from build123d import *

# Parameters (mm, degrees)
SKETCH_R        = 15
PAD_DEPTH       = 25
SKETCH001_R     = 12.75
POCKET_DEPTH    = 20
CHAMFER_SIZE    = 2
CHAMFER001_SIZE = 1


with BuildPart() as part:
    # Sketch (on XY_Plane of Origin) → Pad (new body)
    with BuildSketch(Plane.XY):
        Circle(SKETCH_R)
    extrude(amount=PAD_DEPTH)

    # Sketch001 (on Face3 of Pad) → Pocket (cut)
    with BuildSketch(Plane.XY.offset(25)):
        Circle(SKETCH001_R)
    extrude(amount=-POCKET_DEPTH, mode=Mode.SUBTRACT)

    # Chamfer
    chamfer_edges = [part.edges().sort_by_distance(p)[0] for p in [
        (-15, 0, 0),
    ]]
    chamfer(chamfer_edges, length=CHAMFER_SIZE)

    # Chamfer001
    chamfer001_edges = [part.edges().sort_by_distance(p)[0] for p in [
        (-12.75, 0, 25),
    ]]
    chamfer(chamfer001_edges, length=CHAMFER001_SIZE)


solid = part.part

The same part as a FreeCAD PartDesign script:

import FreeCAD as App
import Part
import Sketcher


def edges_at(feature, points):
    """Names of the edges that pass closest to the given points."""
    edges = feature.Shape.Edges
    near = lambda p: min(range(len(edges)), key=lambda i: edges[i].distToShape(Part.Vertex(*p))[0])
    return sorted({f"Edge{near(p) + 1}" for p in points})

doc = App.newDocument("Part")
body = doc.addObject("PartDesign::Body", "Body")

# Sketch on XY plane
sketch1 = body.newObject("Sketcher::SketchObject", "Sketch")
sketch1.AttachmentSupport = (doc.getObject("XY_Plane"), [""])
sketch1.MapMode = "FlatFace"
sketch1.addGeometry(Part.Circle(App.Vector(0, 0, 0), App.Vector(0, 0, 1), 15), False)
sketch1.addConstraint([
    Sketcher.Constraint("Coincident", 0, 3, -1, 1),
    Sketcher.Constraint("Diameter", 0, 30.0),
])
pad1 = body.newObject("PartDesign::Pad", "Pad")
pad1.Profile = sketch1
pad1.Length = 25

# Sketch on XY plane
sketch2 = body.newObject("Sketcher::SketchObject", "Sketch001")
sketch2.AttachmentSupport = (doc.getObject("XY_Plane"), [""])
sketch2.MapMode = "FlatFace"
sketch2.AttachmentOffset = App.Placement(App.Vector(0, 0, 25), App.Rotation())
sketch2.addGeometry(Part.Circle(App.Vector(0, 0, 0), App.Vector(0, 0, 1), 13), False)
sketch2.addConstraint([
    Sketcher.Constraint("Coincident", 0, 3, -1, 1),
    Sketcher.Constraint("Diameter", 0, 25.5),
])
pocket1 = body.newObject("PartDesign::Pocket", "Pocket")
pocket1.Profile = sketch2
pocket1.Length = 20
doc.recompute()

chamfer = body.newObject("PartDesign::Chamfer", "Chamfer")
chamfer.Base = (pocket1, edges_at(pocket1, [(-15, 0, 0)]))
chamfer.Size = 2
doc.recompute()

chamfer2 = body.newObject("PartDesign::Chamfer", "Chamfer001")
chamfer2.Base = (chamfer, edges_at(chamfer, [(-12.75, 0, 25)]))
chamfer2.Size = 1

doc.recompute()
